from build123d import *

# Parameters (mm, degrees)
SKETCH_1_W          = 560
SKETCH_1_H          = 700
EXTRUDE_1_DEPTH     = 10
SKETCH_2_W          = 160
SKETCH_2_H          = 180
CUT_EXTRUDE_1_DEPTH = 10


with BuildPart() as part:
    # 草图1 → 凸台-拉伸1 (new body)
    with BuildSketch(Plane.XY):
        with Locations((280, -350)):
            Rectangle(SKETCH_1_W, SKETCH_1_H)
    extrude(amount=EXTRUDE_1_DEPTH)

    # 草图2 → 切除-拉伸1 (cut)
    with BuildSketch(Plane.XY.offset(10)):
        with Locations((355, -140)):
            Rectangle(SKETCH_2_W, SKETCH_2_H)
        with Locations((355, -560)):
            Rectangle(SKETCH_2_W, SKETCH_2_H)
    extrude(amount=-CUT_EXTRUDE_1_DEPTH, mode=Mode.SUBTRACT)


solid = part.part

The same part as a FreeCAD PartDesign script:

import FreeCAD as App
import Part
import Sketcher
Q = App.Units.Quantity


def add_polygon(sketch, points):
    """Adds a closed chain of lines whose ends are joined by coincident constraints."""
    first, n = sketch.GeometryCount, len(points)
    for a, b in zip(points, points[1:] + points[:1]):
        sketch.addGeometry(Part.LineSegment(App.Vector(*a, 0), App.Vector(*b, 0)), False)
    for i in range(n):
        sketch.addConstraint(Sketcher.Constraint("Coincident", first + i, 2, first + (i + 1) % n, 1))

doc = App.newDocument("Part")
body = doc.addObject("PartDesign::Body", "Body")

# Sketch on XY plane
sketch1 = body.newObject("Sketcher::SketchObject", "Sketch")
sketch1.AttachmentSupport = (doc.getObject("XY_Plane"), [""])
sketch1.MapMode = "FlatFace"
add_polygon(sketch1, [(0, 0), (0, -700), (560, -700), (560, 0)])  # lines 0-3
sketch1.addConstraint([
    Sketcher.Constraint("Vertical", 0),
    Sketcher.Constraint("Horizontal", 1),
    Sketcher.Constraint("Vertical", 2),
    Sketcher.Constraint("Horizontal", 3),
    Sketcher.Constraint("Coincident", 3, 2, -1, 1),
    Sketcher.Constraint("DistanceX", 1, 1, 1, 2, Q("560 mm")),
    Sketcher.Constraint("DistanceY", 0, 2, 0, 1, Q("700 mm")),
])
pad1 = body.newObject("PartDesign::Pad", "Pad")
pad1.Profile = sketch1
pad1.Length = 10

# Sketch on XY plane
sketch2 = body.newObject("Sketcher::SketchObject", "Sketch001")
sketch2.AttachmentSupport = (doc.getObject("XY_Plane"), [""])
sketch2.MapMode = "FlatFace"
sketch2.AttachmentOffset = App.Placement(App.Vector(0, 0, 10), App.Rotation())
add_polygon(sketch2, [(275, -50), (275, -230), (435, -230), (435, -50)])  # lines 0-3
add_polygon(sketch2, [(275, -470), (275, -650), (435, -650), (435, -470)])  # lines 4-7
sketch2.addConstraint([
    Sketcher.Constraint("Vertical", 0),
    Sketcher.Constraint("Horizontal", 1),
    Sketcher.Constraint("Vertical", 2),
    Sketcher.Constraint("Horizontal", 3),
    Sketcher.Constraint("Vertical", 4),
    Sketcher.Constraint("Horizontal", 5),
    Sketcher.Constraint("Vertical", 6),
    Sketcher.Constraint("Horizontal", 7),
    Sketcher.Constraint("Vertical", 3, 2, 4, 2),
    Sketcher.Constraint("Vertical", 2, 2, 5, 2),
    Sketcher.Constraint("Equal", 2, 4),
    Sketcher.Constraint("DistanceX", 1, 1, 1, 2, Q("160 mm")),
    Sketcher.Constraint("DistanceY", 0, 2, 0, 1, Q("180 mm")),
    Sketcher.Constraint("DistanceX", -1, 1, 0, 2, Q("275 mm")),
    Sketcher.Constraint("DistanceY", 0, 2, -1, 1, Q("230 mm")),
    Sketcher.Constraint("DistanceY", 4, 2, -1, 1, Q("650 mm")),
])
pocket1 = body.newObject("PartDesign::Pocket", "Pocket")
pocket1.Profile = sketch2
pocket1.Length = 10

doc.recompute()
